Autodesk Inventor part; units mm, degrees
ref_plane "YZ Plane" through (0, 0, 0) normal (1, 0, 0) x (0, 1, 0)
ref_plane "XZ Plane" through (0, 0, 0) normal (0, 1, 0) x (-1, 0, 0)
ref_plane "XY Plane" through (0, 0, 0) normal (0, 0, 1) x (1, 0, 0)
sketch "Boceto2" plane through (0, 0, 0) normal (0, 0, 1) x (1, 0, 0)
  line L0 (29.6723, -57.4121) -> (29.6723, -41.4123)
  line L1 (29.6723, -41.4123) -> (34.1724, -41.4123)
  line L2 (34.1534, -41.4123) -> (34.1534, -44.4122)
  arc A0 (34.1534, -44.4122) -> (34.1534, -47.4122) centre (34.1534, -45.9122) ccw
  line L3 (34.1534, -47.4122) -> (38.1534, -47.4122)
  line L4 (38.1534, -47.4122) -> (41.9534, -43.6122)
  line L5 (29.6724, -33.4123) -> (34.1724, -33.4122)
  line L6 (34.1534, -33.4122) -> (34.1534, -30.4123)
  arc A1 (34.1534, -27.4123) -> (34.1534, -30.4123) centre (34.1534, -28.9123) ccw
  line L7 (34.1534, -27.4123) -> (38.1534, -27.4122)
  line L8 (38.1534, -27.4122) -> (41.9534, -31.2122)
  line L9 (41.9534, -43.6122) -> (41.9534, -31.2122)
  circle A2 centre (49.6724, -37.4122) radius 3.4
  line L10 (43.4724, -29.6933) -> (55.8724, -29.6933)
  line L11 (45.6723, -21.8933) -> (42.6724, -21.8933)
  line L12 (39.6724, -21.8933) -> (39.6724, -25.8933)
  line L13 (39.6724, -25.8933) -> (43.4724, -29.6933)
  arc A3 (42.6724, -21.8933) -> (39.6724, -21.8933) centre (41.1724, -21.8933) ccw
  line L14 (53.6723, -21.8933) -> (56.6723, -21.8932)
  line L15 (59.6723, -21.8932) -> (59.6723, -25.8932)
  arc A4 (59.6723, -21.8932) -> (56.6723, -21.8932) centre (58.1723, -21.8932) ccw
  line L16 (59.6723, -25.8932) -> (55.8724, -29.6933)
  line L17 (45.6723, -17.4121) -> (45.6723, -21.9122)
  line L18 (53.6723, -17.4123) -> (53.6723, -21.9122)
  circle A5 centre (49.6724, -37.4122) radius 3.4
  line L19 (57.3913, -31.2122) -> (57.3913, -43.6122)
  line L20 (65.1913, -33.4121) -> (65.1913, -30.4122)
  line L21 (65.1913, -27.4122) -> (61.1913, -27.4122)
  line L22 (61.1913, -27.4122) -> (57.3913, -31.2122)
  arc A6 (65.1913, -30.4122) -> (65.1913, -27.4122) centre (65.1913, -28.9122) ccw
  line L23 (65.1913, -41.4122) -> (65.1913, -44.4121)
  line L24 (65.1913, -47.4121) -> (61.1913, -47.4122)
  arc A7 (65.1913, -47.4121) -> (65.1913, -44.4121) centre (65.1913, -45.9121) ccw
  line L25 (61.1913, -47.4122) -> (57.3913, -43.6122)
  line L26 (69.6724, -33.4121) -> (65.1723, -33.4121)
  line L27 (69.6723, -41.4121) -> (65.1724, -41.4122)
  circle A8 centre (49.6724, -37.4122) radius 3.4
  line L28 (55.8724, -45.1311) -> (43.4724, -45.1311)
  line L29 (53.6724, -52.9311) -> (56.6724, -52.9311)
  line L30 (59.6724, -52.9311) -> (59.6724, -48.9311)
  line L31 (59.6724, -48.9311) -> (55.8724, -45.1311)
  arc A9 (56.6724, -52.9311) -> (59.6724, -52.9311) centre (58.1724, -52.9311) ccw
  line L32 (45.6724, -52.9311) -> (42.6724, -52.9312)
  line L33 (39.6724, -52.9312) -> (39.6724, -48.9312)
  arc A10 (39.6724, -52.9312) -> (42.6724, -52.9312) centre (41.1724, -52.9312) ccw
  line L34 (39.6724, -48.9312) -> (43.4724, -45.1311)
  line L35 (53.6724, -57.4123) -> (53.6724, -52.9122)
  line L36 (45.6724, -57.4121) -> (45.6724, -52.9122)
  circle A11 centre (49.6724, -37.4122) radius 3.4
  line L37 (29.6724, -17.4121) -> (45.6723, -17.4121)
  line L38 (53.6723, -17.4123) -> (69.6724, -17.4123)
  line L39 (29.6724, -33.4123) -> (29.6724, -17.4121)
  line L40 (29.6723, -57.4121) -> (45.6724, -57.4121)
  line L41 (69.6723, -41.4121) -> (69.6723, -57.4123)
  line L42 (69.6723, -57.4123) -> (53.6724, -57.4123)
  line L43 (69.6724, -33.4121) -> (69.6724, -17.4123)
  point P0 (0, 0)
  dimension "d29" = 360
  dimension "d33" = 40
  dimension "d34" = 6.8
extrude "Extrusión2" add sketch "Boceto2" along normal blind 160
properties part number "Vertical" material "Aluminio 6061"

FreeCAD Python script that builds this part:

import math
import FreeCAD as App
import Part
import Sketcher
from FreeCAD import Vector
Q = App.Units.Quantity

doc = App.newDocument("Part")
params = doc.addObject("Spreadsheet::Sheet", "Params")
for row, (alias, value) in enumerate([
    ("sketch1_diameter", "6.8 mm"),
    ("sketch1_radius", "1.5 mm"),
    ("sketch1_width", "16 mm"),
    ("sketch1_width2", "3 mm"),
    ("sketch1_width3", "4 mm"),
    ("pad1_length", "160 mm"),
], start=1):
    params.set(f"A{row}", alias)
    params.set(f"B{row}", "=" + value)
    params.setAlias(f"B{row}", alias)

body = doc.addObject("PartDesign::Body", "Body")

sketch1 = doc.addObject("Sketcher::SketchObject", "Sketch")
body.addObject(sketch1)
sketch1.AttachmentSupport = (doc.XY_Plane, [""])
sketch1.MapMode = "FlatFace"
sketch1.addGeometry(Part.LineSegment(Vector(29.6723, -41.4123, 0), Vector(29.6723, -57.4121, 0)), False)
sketch1.addGeometry(Part.LineSegment(Vector(29.6723, -57.4121, 0), Vector(45.6724, -57.4121, 0)), False)
sketch1.addGeometry(Part.LineSegment(Vector(45.6724, -57.4121, 0), Vector(45.6724, -52.9311, 0)), False)
sketch1.addGeometry(Part.LineSegment(Vector(45.6724, -52.9311, 0), Vector(42.6724, -52.9312, 0)), False)
sketch1.addGeometry(Part.ArcOfCircle(Part.Circle(Vector(41.1724, -52.9312, 0), Vector(0, 0, 1), 1.5), math.radians(180), math.radians(360)), False)
sketch1.addGeometry(Part.LineSegment(Vector(39.6724, -52.9312, 0), Vector(39.6724, -48.9312, 0)), False)
sketch1.addGeometry(Part.LineSegment(Vector(39.6724, -48.9312, 0), Vector(43.4724, -45.1311, 0)), False)
sketch1.addGeometry(Part.LineSegment(Vector(43.4724, -45.1311, 0), Vector(55.8724, -45.1311, 0)), False)
sketch1.addGeometry(Part.LineSegment(Vector(55.8724, -45.1311, 0), Vector(59.6724, -48.9311, 0)), False)
sketch1.addGeometry(Part.LineSegment(Vector(59.6724, -48.9311, 0), Vector(59.6724, -52.9311, 0)), False)
sketch1.addGeometry(Part.ArcOfCircle(Part.Circle(Vector(58.1724, -52.9311, 0), Vector(0, 0, 1), 1.5), math.radians(180), math.radians(360)), False)
sketch1.addGeometry(Part.LineSegment(Vector(56.6724, -52.9311, 0), Vector(53.6724, -52.9311, 0)), False)
sketch1.addGeometry(Part.LineSegment(Vector(53.6724, -52.9311, 0), Vector(53.6724, -57.4123, 0)), False)
sketch1.addGeometry(Part.LineSegment(Vector(53.6724, -57.4123, 0), Vector(69.6723, -57.4123, 0)), False)
sketch1.addGeometry(Part.LineSegment(Vector(69.6723, -57.4123, 0), Vector(69.6723, -41.4121, 0)), False)
sketch1.addGeometry(Part.LineSegment(Vector(69.6723, -41.4121, 0), Vector(65.1913, -41.4122, 0)), False)
sketch1.addGeometry(Part.LineSegment(Vector(65.1913, -41.4122, 0), Vector(65.1913, -44.4121, 0)), False)
sketch1.addGeometry(Part.ArcOfCircle(Part.Circle(Vector(65.1913, -45.9121, 0), Vector(0, 0, 1), 1.5), math.radians(-90), math.radians(90)), False)
sketch1.addGeometry(Part.LineSegment(Vector(65.1913, -47.4121, 0), Vector(61.1913, -47.4122, 0)), False)
sketch1.addGeometry(Part.LineSegment(Vector(61.1913, -47.4122, 0), Vector(57.3913, -43.6122, 0)), False)
sketch1.addGeometry(Part.LineSegment(Vector(57.3913, -43.6122, 0), Vector(57.3913, -31.2122, 0)), False)
sketch1.addGeometry(Part.LineSegment(Vector(57.3913, -31.2122, 0), Vector(61.1913, -27.4122, 0)), False)
sketch1.addGeometry(Part.LineSegment(Vector(61.1913, -27.4122, 0), Vector(65.1913, -27.4122, 0)), False)
sketch1.addGeometry(Part.ArcOfCircle(Part.Circle(Vector(65.1913, -28.9122, 0), Vector(0, 0, 1), 1.5), math.radians(-90), math.radians(90)), False)
sketch1.addGeometry(Part.LineSegment(Vector(65.1913, -30.4122, 0), Vector(65.1913, -33.4121, 0)), False)
sketch1.addGeometry(Part.LineSegment(Vector(65.1913, -33.4121, 0), Vector(69.6724, -33.4121, 0)), False)
sketch1.addGeometry(Part.LineSegment(Vector(69.6724, -33.4121, 0), Vector(69.6724, -17.4123, 0)), False)
sketch1.addGeometry(Part.LineSegment(Vector(69.6724, -17.4123, 0), Vector(53.6723, -17.4123, 0)), False)
sketch1.addGeometry(Part.LineSegment(Vector(53.6723, -17.4123, 0), Vector(53.6723, -21.8933, 0)), False)
sketch1.addGeometry(Part.LineSegment(Vector(53.6723, -21.8933, 0), Vector(56.6723, -21.8932, 0)), False)
sketch1.addGeometry(Part.ArcOfCircle(Part.Circle(Vector(58.1723, -21.8932, 0), Vector(0, 0, 1), 1.5), math.radians(0), math.radians(180)), False)
sketch1.addGeometry(Part.LineSegment(Vector(59.6723, -21.8932, 0), Vector(59.6723, -25.8932, 0)), False)
sketch1.addGeometry(Part.LineSegment(Vector(59.6723, -25.8932, 0), Vector(55.8724, -29.6933, 0)), False)
sketch1.addGeometry(Part.LineSegment(Vector(55.8724, -29.6933, 0), Vector(43.4724, -29.6933, 0)), False)
sketch1.addGeometry(Part.LineSegment(Vector(43.4724, -29.6933, 0), Vector(39.6724, -25.8933, 0)), False)
sketch1.addGeometry(Part.LineSegment(Vector(39.6724, -25.8933, 0), Vector(39.6724, -21.8933, 0)), False)
sketch1.addGeometry(Part.ArcOfCircle(Part.Circle(Vector(41.1724, -21.8933, 0), Vector(0, 0, 1), 1.5), math.radians(0), math.radians(180)), False)
sketch1.addGeometry(Part.LineSegment(Vector(42.6724, -21.8933, 0), Vector(45.6723, -21.8933, 0)), False)
sketch1.addGeometry(Part.LineSegment(Vector(45.6723, -21.8933, 0), Vector(45.6723, -17.4121, 0)), False)
sketch1.addGeometry(Part.LineSegment(Vector(45.6723, -17.4121, 0), Vector(29.6724, -17.4121, 0)), False)
sketch1.addGeometry(Part.LineSegment(Vector(29.6724, -17.4121, 0), Vector(29.6724, -33.4123, 0)), False)
sketch1.addGeometry(Part.LineSegment(Vector(29.6724, -33.4123, 0), Vector(34.1534, -33.4122, 0)), False)
sketch1.addGeometry(Part.LineSegment(Vector(34.1534, -33.4122, 0), Vector(34.1534, -30.4123, 0)), False)
sketch1.addGeometry(Part.ArcOfCircle(Part.Circle(Vector(34.1534, -28.9123, 0), Vector(0, 0, 1), 1.5), math.radians(90), math.radians(270)), False)
sketch1.addGeometry(Part.LineSegment(Vector(34.1534, -27.4123, 0), Vector(38.1534, -27.4122, 0)), False)
sketch1.addGeometry(Part.LineSegment(Vector(38.1534, -27.4122, 0), Vector(41.9534, -31.2122, 0)), False)
sketch1.addGeometry(Part.LineSegment(Vector(41.9534, -31.2122, 0), Vector(41.9534, -43.6122, 0)), False)
sketch1.addGeometry(Part.LineSegment(Vector(41.9534, -43.6122, 0), Vector(38.1534, -47.4122, 0)), False)
sketch1.addGeometry(Part.LineSegment(Vector(38.1534, -47.4122, 0), Vector(34.1534, -47.4122, 0)), False)
sketch1.addGeometry(Part.ArcOfCircle(Part.Circle(Vector(34.1534, -45.9122, 0), Vector(0, 0, 1), 1.5), math.radians(90), math.radians(270)), False)
sketch1.addGeometry(Part.LineSegment(Vector(34.1534, -44.4122, 0), Vector(34.1534, -41.4123, 0)), False)
sketch1.addGeometry(Part.LineSegment(Vector(34.1534, -41.4123, 0), Vector(29.6723, -41.4123, 0)), False)
sketch1.addGeometry(Part.Circle(Vector(49.6724, -37.4122, 0), Vector(0, 0, 1), 3.4), False)
sketch1.addConstraint(Sketcher.Constraint("Coincident", 0, 2, 1, 1))
sketch1.addConstraint(Sketcher.Constraint("Coincident", 1, 2, 2, 1))
sketch1.addConstraint(Sketcher.Constraint("Coincident", 2, 2, 3, 1))
sketch1.addConstraint(Sketcher.Constraint("Coincident", 3, 2, 4, 2))
sketch1.addConstraint(Sketcher.Constraint("Tangent", 4, 1, 5, 1))
sketch1.addConstraint(Sketcher.Constraint("Coincident", 5, 2, 6, 1))
sketch1.addConstraint(Sketcher.Constraint("Coincident", 6, 2, 7, 1))
sketch1.addConstraint(Sketcher.Constraint("Coincident", 7, 2, 8, 1))
sketch1.addConstraint(Sketcher.Constraint("Coincident", 8, 2, 9, 1))
sketch1.addConstraint(Sketcher.Constraint("Tangent", 9, 2, 10, 2))
sketch1.addConstraint(Sketcher.Constraint("Coincident", 10, 1, 11, 1))
sketch1.addConstraint(Sketcher.Constraint("Coincident", 11, 2, 12, 1))
sketch1.addConstraint(Sketcher.Constraint("Coincident", 12, 2, 13, 1))
sketch1.addConstraint(Sketcher.Constraint("Coincident", 13, 2, 14, 1))
sketch1.addConstraint(Sketcher.Constraint("Coincident", 14, 2, 15, 1))
sketch1.addConstraint(Sketcher.Constraint("Coincident", 15, 2, 16, 1))
sketch1.addConstraint(Sketcher.Constraint("Coincident", 16, 2, 17, 2))
sketch1.addConstraint(Sketcher.Constraint("Tangent", 17, 1, 18, 1))
sketch1.addConstraint(Sketcher.Constraint("Coincident", 18, 2, 19, 1))
sketch1.addConstraint(Sketcher.Constraint("Coincident", 19, 2, 20, 1))
sketch1.addConstraint(Sketcher.Constraint("Coincident", 20, 2, 21, 1))
sketch1.addConstraint(Sketcher.Constraint("Coincident", 21, 2, 22, 1))
sketch1.addConstraint(Sketcher.Constraint("Tangent", 22, 2, 23, 2))
sketch1.addConstraint(Sketcher.Constraint("Coincident", 23, 1, 24, 1))
sketch1.addConstraint(Sketcher.Constraint("Coincident", 24, 2, 25, 1))
sketch1.addConstraint(Sketcher.Constraint("Coincident", 25, 2, 26, 1))
sketch1.addConstraint(Sketcher.Constraint("Coincident", 26, 2, 27, 1))
sketch1.addConstraint(Sketcher.Constraint("Coincident", 27, 2, 28, 1))
sketch1.addConstraint(Sketcher.Constraint("Coincident", 28, 2, 29, 1))
sketch1.addConstraint(Sketcher.Constraint("Coincident", 29, 2, 30, 2))
sketch1.addConstraint(Sketcher.Constraint("Tangent", 30, 1, 31, 1))
sketch1.addConstraint(Sketcher.Constraint("Coincident", 31, 2, 32, 1))
sketch1.addConstraint(Sketcher.Constraint("Coincident", 32, 2, 33, 1))
sketch1.addConstraint(Sketcher.Constraint("Coincident", 33, 2, 34, 1))
sketch1.addConstraint(Sketcher.Constraint("Coincident", 34, 2, 35, 1))
sketch1.addConstraint(Sketcher.Constraint("Tangent", 35, 2, 36, 2))
sketch1.addConstraint(Sketcher.Constraint("Coincident", 36, 1, 37, 1))
sketch1.addConstraint(Sketcher.Constraint("Coincident", 37, 2, 38, 1))
sketch1.addConstraint(Sketcher.Constraint("Coincident", 38, 2, 39, 1))
sketch1.addConstraint(Sketcher.Constraint("Coincident", 39, 2, 40, 1))
sketch1.addConstraint(Sketcher.Constraint("Coincident", 40, 2, 41, 1))
sketch1.addConstraint(Sketcher.Constraint("Coincident", 41, 2, 42, 1))
sketch1.addConstraint(Sketcher.Constraint("Coincident", 42, 2, 43, 2))
sketch1.addConstraint(Sketcher.Constraint("Tangent", 43, 1, 44, 1))
sketch1.addConstraint(Sketcher.Constraint("Coincident", 44, 2, 45, 1))
sketch1.addConstraint(Sketcher.Constraint("Coincident", 45, 2, 46, 1))
sketch1.addConstraint(Sketcher.Constraint("Coincident", 46, 2, 47, 1))
sketch1.addConstraint(Sketcher.Constraint("Coincident", 47, 2, 48, 1))
sketch1.addConstraint(Sketcher.Constraint("Tangent", 48, 2, 49, 2))
sketch1.addConstraint(Sketcher.Constraint("Coincident", 49, 1, 50, 1))
sketch1.addConstraint(Sketcher.Constraint("Coincident", 50, 2, 51, 1))
sketch1.addConstraint(Sketcher.Constraint("Coincident", 51, 2, 0, 1))
sketch1.addConstraint(Sketcher.Constraint("Vertical", 0))
sketch1.addConstraint(Sketcher.Constraint("Horizontal", 1))
sketch1.addConstraint(Sketcher.Constraint("Vertical", 2))
sketch1.addConstraint(Sketcher.Constraint("Horizontal", 3))
sketch1.addConstraint(Sketcher.Constraint("Vertical", 5))
sketch1.addConstraint(Sketcher.Constraint("Horizontal", 7))
sketch1.addConstraint(Sketcher.Constraint("Vertical", 9))
sketch1.addConstraint(Sketcher.Constraint("Horizontal", 11))
sketch1.addConstraint(Sketcher.Constraint("Vertical", 12))
sketch1.addConstraint(Sketcher.Constraint("Horizontal", 13))
sketch1.addConstraint(Sketcher.Constraint("Vertical", 14))
sketch1.addConstraint(Sketcher.Constraint("Horizontal", 15))
sketch1.addConstraint(Sketcher.Constraint("Vertical", 16))
sketch1.addConstraint(Sketcher.Constraint("Horizontal", 18))
sketch1.addConstraint(Sketcher.Constraint("Vertical", 20))
sketch1.addConstraint(Sketcher.Constraint("Horizontal", 22))
sketch1.addConstraint(Sketcher.Constraint("Vertical", 24))
sketch1.addConstraint(Sketcher.Constraint("Horizontal", 25))
sketch1.addConstraint(Sketcher.Constraint("Vertical", 26))
sketch1.addConstraint(Sketcher.Constraint("Horizontal", 27))
sketch1.addConstraint(Sketcher.Constraint("Vertical", 28))
sketch1.addConstraint(Sketcher.Constraint("Horizontal", 29))
sketch1.addConstraint(Sketcher.Constraint("Vertical", 31))
sketch1.addConstraint(Sketcher.Constraint("Horizontal", 33))
sketch1.addConstraint(Sketcher.Constraint("Vertical", 35))
sketch1.addConstraint(Sketcher.Constraint("Horizontal", 37))
sketch1.addConstraint(Sketcher.Constraint("Vertical", 38))
sketch1.addConstraint(Sketcher.Constraint("Horizontal", 39))
sketch1.addConstraint(Sketcher.Constraint("Vertical", 40))
sketch1.addConstraint(Sketcher.Constraint("Horizontal", 41))
sketch1.addConstraint(Sketcher.Constraint("Vertical", 42))
sketch1.addConstraint(Sketcher.Constraint("Horizontal", 44))
sketch1.addConstraint(Sketcher.Constraint("Vertical", 46))
sketch1.addConstraint(Sketcher.Constraint("Horizontal", 48))
sketch1.addConstraint(Sketcher.Constraint("Vertical", 50))
sketch1.addConstraint(Sketcher.Constraint("Horizontal", 51))
sketch1.addConstraint(Sketcher.Constraint("Equal", 4, 10))
sketch1.addConstraint(Sketcher.Constraint("Equal", 10, 17))
sketch1.addConstraint(Sketcher.Constraint("Equal", 17, 23))
sketch1.addConstraint(Sketcher.Constraint("Equal", 23, 30))
sketch1.addConstraint(Sketcher.Constraint("Equal", 30, 36))
sketch1.addConstraint(Sketcher.Constraint("Equal", 36, 43))
sketch1.addConstraint(Sketcher.Constraint("Equal", 43, 49))
sketch1.addConstraint(Sketcher.Constraint("Perpendicular", 6, 8))
sketch1.addConstraint(Sketcher.Constraint("Parallel", 8, 19))
sketch1.addConstraint(Sketcher.Constraint("Perpendicular", 19, 21))
sketch1.addConstraint(Sketcher.Constraint("Parallel", 21, 32))
sketch1.addConstraint(Sketcher.Constraint("Perpendicular", 32, 34))
sketch1.addConstraint(Sketcher.Constraint("Parallel", 34, 45))
sketch1.addConstraint(Sketcher.Constraint("Perpendicular", 45, 47))
sketch1.addConstraint(Sketcher.Constraint("Horizontal", 4, 3, 10, 3))
sketch1.addConstraint(Sketcher.Constraint("Horizontal", 30, 3, 36, 3))
sketch1.addConstraint(Sketcher.Constraint("Horizontal", 23, 3, 43, 3))
sketch1.addConstraint(Sketcher.Constraint("Horizontal", 17, 3, 49, 3))
sketch1.addConstraint(Sketcher.Constraint("Horizontal", 10, 3, 2, 2))
sketch1.addConstraint(Sketcher.Constraint("Horizontal", 5, 2, 8, 2))
sketch1.addConstraint(Sketcher.Constraint("Horizontal", 9, 2, 10, 1))
sketch1.addConstraint(Sketcher.Constraint("Horizontal", 1, 2, 12, 2))
sketch1.addConstraint(Sketcher.Constraint("Horizontal", 36, 3, 28, 2))
sketch1.addConstraint(Sketcher.Constraint("Horizontal", 31, 2, 34, 2))
sketch1.addConstraint(Sketcher.Constraint("Horizontal", 35, 2, 36, 1))
sketch1.addConstraint(Sketcher.Constraint("Horizontal", 27, 2, 38, 2))
sketch1.addConstraint(Sketcher.Constraint("Horizontal", 25, 2, 40, 2))
sketch1.addConstraint(Sketcher.Constraint("Horizontal", 20, 2, 45, 2))
sketch1.addConstraint(Sketcher.Constraint("Horizontal", 19, 2, 46, 2))
sketch1.addConstraint(Sketcher.Constraint("Horizontal", 15, 2, 50, 2))
sketch1.addConstraint(Sketcher.Constraint("Vertical", 17, 3, 23, 3))
sketch1.addConstraint(Sketcher.Constraint("Vertical", 10, 3, 30, 3))
sketch1.addConstraint(Sketcher.Constraint("Vertical", 4, 3, 36, 3))
sketch1.addConstraint(Sketcher.Constraint("Vertical", 43, 3, 49, 3))
sketch1.addConstraint(Sketcher.Constraint("Vertical", 23, 3, 15, 2))
sketch1.addConstraint(Sketcher.Constraint("Vertical", 18, 2, 21, 2))
sketch1.addConstraint(Sketcher.Constraint("Vertical", 22, 2, 23, 1))
sketch1.addConstraint(Sketcher.Constraint("Vertical", 14, 2, 25, 2))
sketch1.addConstraint(Sketcher.Constraint("Vertical", 12, 2, 27, 2))
sketch1.addConstraint(Sketcher.Constraint("Vertical", 7, 2, 32, 2))
sketch1.addConstraint(Sketcher.Constraint("Vertical", 6, 2, 33, 2))
sketch1.addConstraint(Sketcher.Constraint("Vertical", 2, 2, 37, 2))
sketch1.addConstraint(Sketcher.Constraint("Vertical", 0, 2, 39, 2))
sketch1.addConstraint(Sketcher.Constraint("Vertical", 49, 3, 41, 2))
sketch1.addConstraint(Sketcher.Constraint("Vertical", 48, 2, 49, 1))
sketch1.addConstraint(Sketcher.Constraint("Equal", 3, 11))
sketch1.addConstraint(Sketcher.Constraint("Equal", 1, 13))
sketch1.addConstraint(Sketcher.Constraint("Equal", 25, 41))
sketch1.addConstraint(Sketcher.Constraint("Equal", 22, 44))
sketch1.addConstraint(Sketcher.Constraint("Equal", 39, 0))
sketch1.addConstraint(Sketcher.Constraint("Equal", 51, 2))
sketch1.addConstraint(Sketcher.Constraint("Equal", 48, 5))
sketch1.addConstraint(Sketcher.Constraint("Equal", 37, 16))
sketch1.addConstraint(Sketcher.Constraint("Equal", 33, 20))
sketch1.addConstraint(Sketcher.Constraint("Equal", 16, 24))
sketch1.addConstraint(Sketcher.Constraint("Equal", 0, 26))
sketch1.addConstraint(Sketcher.Constraint("Equal", 12, 28))
sketch1.addConstraint(Sketcher.Constraint("Equal", 9, 31))
sketch1.addConstraint(Sketcher.Constraint("Equal", 8, 19))
sketch1.addConstraint(Sketcher.Constraint("Diameter", 52, Q("6.8 mm")))
sketch1.addConstraint(Sketcher.Constraint("Radius", 4, Q("1.5 mm")))
sketch1.addConstraint(Sketcher.Constraint("DistanceX", 1, 1, 1, 2, Q("16 mm")))
sketch1.addConstraint(Sketcher.Constraint("DistanceX", 3, 2, 3, 1, Q("3 mm")))
sketch1.addConstraint(Sketcher.Constraint("DistanceX", 18, 2, 18, 1, Q("4 mm")))
sketch1.addConstraint(Sketcher.Constraint("DistanceX", 7, 1, 7, 2, Q("12.4 mm")))
sketch1.addConstraint(Sketcher.Constraint("DistanceX", 15, 2, 15, 1, Q("4.481 mm")))
sketch1.addConstraint(Sketcher.Constraint("Distance", 6, Q("5.374 mm")))
sketch1.addConstraint(Sketcher.Constraint("DistanceY", 10, 3, -1, 1, Q("52.931 mm")))
sketch1.addConstraint(Sketcher.Constraint("DistanceX", -1, 1, 4, 3, Q("41.1724 mm")))
sketch1.addConstraint(Sketcher.Constraint("DistanceX", -1, 1, 52, 3, Q("49.6724 mm")))
sketch1.addConstraint(Sketcher.Constraint("DistanceY", 52, 3, -1, 1, Q("37.4122 mm")))
sketch1.setExpression("Constraints[147]", "Params.sketch1_diameter")
sketch1.setExpression("Constraints[148]", "Params.sketch1_radius")
sketch1.setExpression("Constraints[149]", "Params.sketch1_width")
sketch1.setExpression("Constraints[150]", "Params.sketch1_width2")
sketch1.setExpression("Constraints[151]", "Params.sketch1_width3")
pad1 = doc.addObject("PartDesign::Pad", "Pad")
body.addObject(pad1)
pad1.Profile = sketch1
pad1.setExpression("Length", "Params.pad1_length")

doc.recompute()
